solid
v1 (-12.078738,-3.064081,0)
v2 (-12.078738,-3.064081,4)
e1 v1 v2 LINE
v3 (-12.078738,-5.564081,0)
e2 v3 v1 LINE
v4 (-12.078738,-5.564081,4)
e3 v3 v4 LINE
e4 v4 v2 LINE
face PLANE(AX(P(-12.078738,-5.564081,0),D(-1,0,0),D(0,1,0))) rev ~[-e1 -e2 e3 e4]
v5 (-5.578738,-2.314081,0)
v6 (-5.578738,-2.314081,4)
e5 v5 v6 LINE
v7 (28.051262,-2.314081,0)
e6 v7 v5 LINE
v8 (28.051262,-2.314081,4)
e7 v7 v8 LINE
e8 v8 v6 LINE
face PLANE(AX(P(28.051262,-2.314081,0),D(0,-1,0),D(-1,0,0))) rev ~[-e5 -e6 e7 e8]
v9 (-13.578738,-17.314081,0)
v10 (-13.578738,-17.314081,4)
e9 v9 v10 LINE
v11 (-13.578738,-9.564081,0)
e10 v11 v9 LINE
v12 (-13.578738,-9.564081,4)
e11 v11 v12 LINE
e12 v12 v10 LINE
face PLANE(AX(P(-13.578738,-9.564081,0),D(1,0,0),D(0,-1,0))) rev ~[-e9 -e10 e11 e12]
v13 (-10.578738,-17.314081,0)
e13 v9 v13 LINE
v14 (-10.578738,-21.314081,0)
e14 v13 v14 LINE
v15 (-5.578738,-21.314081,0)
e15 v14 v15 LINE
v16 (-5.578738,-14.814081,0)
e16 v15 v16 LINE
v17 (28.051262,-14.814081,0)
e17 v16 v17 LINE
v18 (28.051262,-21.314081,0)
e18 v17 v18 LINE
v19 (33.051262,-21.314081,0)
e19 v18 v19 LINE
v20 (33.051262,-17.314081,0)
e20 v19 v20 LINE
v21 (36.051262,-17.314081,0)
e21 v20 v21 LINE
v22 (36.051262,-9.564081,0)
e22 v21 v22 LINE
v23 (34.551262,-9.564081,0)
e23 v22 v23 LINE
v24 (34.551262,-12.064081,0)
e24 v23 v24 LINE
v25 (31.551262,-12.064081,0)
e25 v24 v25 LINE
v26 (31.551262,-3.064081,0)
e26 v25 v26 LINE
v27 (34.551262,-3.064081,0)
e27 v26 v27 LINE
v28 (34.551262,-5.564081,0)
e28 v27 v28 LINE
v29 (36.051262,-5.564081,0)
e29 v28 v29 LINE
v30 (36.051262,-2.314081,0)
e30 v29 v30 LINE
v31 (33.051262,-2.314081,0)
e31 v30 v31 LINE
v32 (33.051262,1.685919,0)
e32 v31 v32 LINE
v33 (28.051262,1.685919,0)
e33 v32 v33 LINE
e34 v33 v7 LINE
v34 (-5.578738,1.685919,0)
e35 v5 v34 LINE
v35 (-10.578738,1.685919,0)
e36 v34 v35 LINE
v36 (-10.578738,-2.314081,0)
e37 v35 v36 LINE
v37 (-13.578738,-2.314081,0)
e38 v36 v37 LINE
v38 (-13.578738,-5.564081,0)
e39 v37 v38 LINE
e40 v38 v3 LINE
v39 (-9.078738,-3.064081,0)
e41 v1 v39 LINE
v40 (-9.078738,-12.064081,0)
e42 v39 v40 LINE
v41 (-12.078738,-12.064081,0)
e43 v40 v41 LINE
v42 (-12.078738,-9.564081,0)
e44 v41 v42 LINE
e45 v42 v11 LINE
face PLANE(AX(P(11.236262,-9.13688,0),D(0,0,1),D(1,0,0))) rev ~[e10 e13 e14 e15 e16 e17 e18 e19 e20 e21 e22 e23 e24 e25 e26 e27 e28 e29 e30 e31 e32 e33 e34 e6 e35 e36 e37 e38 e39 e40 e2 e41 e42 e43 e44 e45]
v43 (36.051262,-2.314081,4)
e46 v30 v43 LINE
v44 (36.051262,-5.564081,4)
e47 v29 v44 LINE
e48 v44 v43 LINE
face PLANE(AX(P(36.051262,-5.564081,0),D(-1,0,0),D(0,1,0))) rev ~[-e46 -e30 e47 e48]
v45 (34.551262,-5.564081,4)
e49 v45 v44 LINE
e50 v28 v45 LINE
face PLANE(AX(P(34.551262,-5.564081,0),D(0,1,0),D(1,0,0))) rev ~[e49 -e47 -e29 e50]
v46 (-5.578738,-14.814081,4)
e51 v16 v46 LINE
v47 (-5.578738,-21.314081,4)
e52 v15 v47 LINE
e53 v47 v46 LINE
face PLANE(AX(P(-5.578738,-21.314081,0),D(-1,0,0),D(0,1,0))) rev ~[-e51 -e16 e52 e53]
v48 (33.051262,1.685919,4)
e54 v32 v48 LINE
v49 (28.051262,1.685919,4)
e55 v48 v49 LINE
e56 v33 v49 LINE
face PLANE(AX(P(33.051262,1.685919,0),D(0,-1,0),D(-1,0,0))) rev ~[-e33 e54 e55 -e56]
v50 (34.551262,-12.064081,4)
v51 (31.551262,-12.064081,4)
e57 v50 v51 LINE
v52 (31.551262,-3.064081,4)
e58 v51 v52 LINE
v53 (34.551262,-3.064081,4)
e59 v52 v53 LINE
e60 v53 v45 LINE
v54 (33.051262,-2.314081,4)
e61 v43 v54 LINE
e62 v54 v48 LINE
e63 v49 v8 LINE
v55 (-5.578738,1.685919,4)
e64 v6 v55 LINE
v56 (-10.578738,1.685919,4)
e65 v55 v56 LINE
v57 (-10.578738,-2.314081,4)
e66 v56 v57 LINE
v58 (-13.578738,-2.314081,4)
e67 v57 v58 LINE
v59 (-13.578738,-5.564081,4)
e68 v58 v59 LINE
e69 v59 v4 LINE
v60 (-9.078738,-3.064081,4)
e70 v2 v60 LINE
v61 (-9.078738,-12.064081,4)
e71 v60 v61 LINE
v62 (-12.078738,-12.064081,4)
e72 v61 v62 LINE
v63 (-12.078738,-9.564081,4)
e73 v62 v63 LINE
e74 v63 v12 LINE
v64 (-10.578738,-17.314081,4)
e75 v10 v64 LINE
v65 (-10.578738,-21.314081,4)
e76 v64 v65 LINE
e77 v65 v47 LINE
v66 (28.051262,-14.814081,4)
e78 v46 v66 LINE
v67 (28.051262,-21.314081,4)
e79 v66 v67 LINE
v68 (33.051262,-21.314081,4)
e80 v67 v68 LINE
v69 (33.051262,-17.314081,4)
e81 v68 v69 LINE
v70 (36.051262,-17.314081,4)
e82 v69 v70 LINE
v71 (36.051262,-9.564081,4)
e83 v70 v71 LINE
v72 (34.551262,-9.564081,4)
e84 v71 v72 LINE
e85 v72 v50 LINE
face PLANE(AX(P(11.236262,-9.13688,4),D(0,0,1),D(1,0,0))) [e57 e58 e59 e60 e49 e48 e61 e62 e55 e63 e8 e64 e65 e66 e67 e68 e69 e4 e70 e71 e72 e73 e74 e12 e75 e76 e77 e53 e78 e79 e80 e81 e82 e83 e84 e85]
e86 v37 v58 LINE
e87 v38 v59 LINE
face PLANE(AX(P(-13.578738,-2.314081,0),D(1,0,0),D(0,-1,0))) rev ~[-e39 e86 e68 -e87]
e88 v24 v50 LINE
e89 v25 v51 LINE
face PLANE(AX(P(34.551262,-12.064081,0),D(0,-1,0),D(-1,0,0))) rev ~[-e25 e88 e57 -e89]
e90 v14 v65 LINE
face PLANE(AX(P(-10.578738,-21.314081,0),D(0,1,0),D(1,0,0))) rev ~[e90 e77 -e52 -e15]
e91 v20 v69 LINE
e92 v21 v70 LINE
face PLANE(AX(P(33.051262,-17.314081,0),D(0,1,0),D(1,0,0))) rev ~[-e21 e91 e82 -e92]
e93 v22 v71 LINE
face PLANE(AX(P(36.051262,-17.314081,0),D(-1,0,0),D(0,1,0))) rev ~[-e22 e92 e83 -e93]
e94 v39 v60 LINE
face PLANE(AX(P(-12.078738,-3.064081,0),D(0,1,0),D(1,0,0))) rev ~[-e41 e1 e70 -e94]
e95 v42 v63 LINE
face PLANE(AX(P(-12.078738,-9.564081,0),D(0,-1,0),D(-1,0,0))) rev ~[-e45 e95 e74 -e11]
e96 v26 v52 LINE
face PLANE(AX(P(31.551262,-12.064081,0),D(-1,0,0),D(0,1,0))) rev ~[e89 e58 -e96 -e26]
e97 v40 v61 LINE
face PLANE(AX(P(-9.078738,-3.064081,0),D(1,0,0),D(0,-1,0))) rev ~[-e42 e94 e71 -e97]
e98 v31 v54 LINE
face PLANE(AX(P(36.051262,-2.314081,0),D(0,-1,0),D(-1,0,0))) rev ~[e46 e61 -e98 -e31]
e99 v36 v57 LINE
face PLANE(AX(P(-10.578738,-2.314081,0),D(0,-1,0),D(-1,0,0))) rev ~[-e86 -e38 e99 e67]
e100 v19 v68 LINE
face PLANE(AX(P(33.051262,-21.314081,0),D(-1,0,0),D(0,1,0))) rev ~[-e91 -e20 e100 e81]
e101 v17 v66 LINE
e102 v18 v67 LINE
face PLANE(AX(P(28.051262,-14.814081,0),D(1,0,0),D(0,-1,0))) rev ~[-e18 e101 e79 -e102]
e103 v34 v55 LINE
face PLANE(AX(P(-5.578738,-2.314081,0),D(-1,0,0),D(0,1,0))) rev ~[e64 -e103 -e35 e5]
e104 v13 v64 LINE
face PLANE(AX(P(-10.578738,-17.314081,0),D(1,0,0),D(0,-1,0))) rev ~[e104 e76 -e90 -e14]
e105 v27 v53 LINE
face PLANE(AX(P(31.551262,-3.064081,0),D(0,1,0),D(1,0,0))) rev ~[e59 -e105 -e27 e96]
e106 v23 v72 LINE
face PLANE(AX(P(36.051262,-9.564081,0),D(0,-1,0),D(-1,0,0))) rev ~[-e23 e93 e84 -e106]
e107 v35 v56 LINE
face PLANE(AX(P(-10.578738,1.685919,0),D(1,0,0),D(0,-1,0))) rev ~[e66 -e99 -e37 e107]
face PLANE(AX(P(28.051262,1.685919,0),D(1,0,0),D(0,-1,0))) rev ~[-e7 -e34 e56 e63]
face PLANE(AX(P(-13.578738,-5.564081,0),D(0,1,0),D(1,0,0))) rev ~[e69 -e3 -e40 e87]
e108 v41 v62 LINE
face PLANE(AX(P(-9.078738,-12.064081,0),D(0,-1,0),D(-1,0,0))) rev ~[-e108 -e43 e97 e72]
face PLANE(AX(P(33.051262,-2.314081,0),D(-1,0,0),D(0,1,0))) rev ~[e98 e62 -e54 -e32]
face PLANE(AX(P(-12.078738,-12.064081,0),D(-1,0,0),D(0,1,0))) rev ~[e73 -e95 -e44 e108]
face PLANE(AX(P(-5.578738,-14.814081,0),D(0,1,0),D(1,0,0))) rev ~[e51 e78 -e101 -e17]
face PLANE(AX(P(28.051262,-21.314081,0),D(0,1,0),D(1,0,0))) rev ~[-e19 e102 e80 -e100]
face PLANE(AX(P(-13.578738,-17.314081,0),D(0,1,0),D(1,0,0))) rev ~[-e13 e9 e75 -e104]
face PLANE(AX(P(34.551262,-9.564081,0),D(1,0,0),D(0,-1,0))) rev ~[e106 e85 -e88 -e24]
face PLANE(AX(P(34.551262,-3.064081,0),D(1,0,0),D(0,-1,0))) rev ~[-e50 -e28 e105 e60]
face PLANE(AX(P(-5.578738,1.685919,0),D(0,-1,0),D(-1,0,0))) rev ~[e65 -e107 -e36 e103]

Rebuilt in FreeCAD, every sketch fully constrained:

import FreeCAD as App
import Part
import Sketcher
Q = App.Units.Quantity

doc = App.newDocument("Part")
body = doc.addObject("PartDesign::Body", "Body")

sketch1 = body.newObject("Sketcher::SketchObject", "Sketch")
sketch1.AttachmentSupport = (doc.getObject("XY_Plane"), [""])
sketch1.MapMode = "FlatFace"
sketch1.addGeometry(Part.LineSegment(App.Vector(-12.078738, -9.564081, 0), App.Vector(-13.578738, -9.564081, 0)), False)
sketch1.addGeometry(Part.LineSegment(App.Vector(-13.578738, -9.564081, 0), App.Vector(-13.578738, -17.314081, 0)), False)
sketch1.addGeometry(Part.LineSegment(App.Vector(-13.578738, -17.314081, 0), App.Vector(-10.578738, -17.314081, 0)), False)
sketch1.addGeometry(Part.LineSegment(App.Vector(-10.578738, -17.314081, 0), App.Vector(-10.578738, -21.314081, 0)), False)
sketch1.addGeometry(Part.LineSegment(App.Vector(-10.578738, -21.314081, 0), App.Vector(-5.578738, -21.314081, 0)), False)
sketch1.addGeometry(Part.LineSegment(App.Vector(-5.578738, -21.314081, 0), App.Vector(-5.578738, -14.814081, 0)), False)
sketch1.addGeometry(Part.LineSegment(App.Vector(-5.578738, -14.814081, 0), App.Vector(28.051262, -14.814081, 0)), False)
sketch1.addGeometry(Part.LineSegment(App.Vector(28.051262, -14.814081, 0), App.Vector(28.051262, -21.314081, 0)), False)
sketch1.addGeometry(Part.LineSegment(App.Vector(28.051262, -21.314081, 0), App.Vector(33.051262, -21.314081, 0)), False)
sketch1.addGeometry(Part.LineSegment(App.Vector(33.051262, -21.314081, 0), App.Vector(33.051262, -17.314081, 0)), False)
sketch1.addGeometry(Part.LineSegment(App.Vector(33.051262, -17.314081, 0), App.Vector(36.051262, -17.314081, 0)), False)
sketch1.addGeometry(Part.LineSegment(App.Vector(36.051262, -17.314081, 0), App.Vector(36.051262, -9.564081, 0)), False)
sketch1.addGeometry(Part.LineSegment(App.Vector(36.051262, -9.564081, 0), App.Vector(34.551262, -9.564081, 0)), False)
sketch1.addGeometry(Part.LineSegment(App.Vector(34.551262, -9.564081, 0), App.Vector(34.551262, -12.064081, 0)), False)
sketch1.addGeometry(Part.LineSegment(App.Vector(34.551262, -12.064081, 0), App.Vector(31.551262, -12.064081, 0)), False)
sketch1.addGeometry(Part.LineSegment(App.Vector(31.551262, -12.064081, 0), App.Vector(31.551262, -3.064081, 0)), False)
sketch1.addGeometry(Part.LineSegment(App.Vector(31.551262, -3.064081, 0), App.Vector(34.551262, -3.064081, 0)), False)
sketch1.addGeometry(Part.LineSegment(App.Vector(34.551262, -3.064081, 0), App.Vector(34.551262, -5.564081, 0)), False)
sketch1.addGeometry(Part.LineSegment(App.Vector(34.551262, -5.564081, 0), App.Vector(36.051262, -5.564081, 0)), False)
sketch1.addGeometry(Part.LineSegment(App.Vector(36.051262, -5.564081, 0), App.Vector(36.051262, -2.314081, 0)), False)
sketch1.addGeometry(Part.LineSegment(App.Vector(36.051262, -2.314081, 0), App.Vector(33.051262, -2.314081, 0)), False)
sketch1.addGeometry(Part.LineSegment(App.Vector(33.051262, -2.314081, 0), App.Vector(33.051262, 1.685919, 0)), False)
sketch1.addGeometry(Part.LineSegment(App.Vector(33.051262, 1.685919, 0), App.Vector(28.051262, 1.685919, 0)), False)
sketch1.addGeometry(Part.LineSegment(App.Vector(28.051262, 1.685919, 0), App.Vector(28.051262, -2.314081, 0)), False)
sketch1.addGeometry(Part.LineSegment(App.Vector(28.051262, -2.314081, 0), App.Vector(-5.578738, -2.314081, 0)), False)
sketch1.addGeometry(Part.LineSegment(App.Vector(-5.578738, -2.314081, 0), App.Vector(-5.578738, 1.685919, 0)), False)
sketch1.addGeometry(Part.LineSegment(App.Vector(-5.578738, 1.685919, 0), App.Vector(-10.578738, 1.685919, 0)), False)
sketch1.addGeometry(Part.LineSegment(App.Vector(-10.578738, 1.685919, 0), App.Vector(-10.578738, -2.314081, 0)), False)
sketch1.addGeometry(Part.LineSegment(App.Vector(-10.578738, -2.314081, 0), App.Vector(-13.578738, -2.314081, 0)), False)
sketch1.addGeometry(Part.LineSegment(App.Vector(-13.578738, -2.314081, 0), App.Vector(-13.578738, -5.564081, 0)), False)
sketch1.addGeometry(Part.LineSegment(App.Vector(-13.578738, -5.564081, 0), App.Vector(-12.078738, -5.564081, 0)), False)
sketch1.addGeometry(Part.LineSegment(App.Vector(-12.078738, -5.564081, 0), App.Vector(-12.078738, -3.064081, 0)), False)
sketch1.addGeometry(Part.LineSegment(App.Vector(-12.078738, -3.064081, 0), App.Vector(-9.078738, -3.064081, 0)), False)
sketch1.addGeometry(Part.LineSegment(App.Vector(-9.078738, -3.064081, 0), App.Vector(-9.078738, -12.064081, 0)), False)
sketch1.addGeometry(Part.LineSegment(App.Vector(-9.078738, -12.064081, 0), App.Vector(-12.078738, -12.064081, 0)), False)
sketch1.addGeometry(Part.LineSegment(App.Vector(-12.078738, -12.064081, 0), App.Vector(-12.078738, -9.564081, 0)), False)
sketch1.addConstraint(Sketcher.Constraint("Coincident", 0, 2, 1, 1))
sketch1.addConstraint(Sketcher.Constraint("Coincident", 1, 2, 2, 1))
sketch1.addConstraint(Sketcher.Constraint("Coincident", 2, 2, 3, 1))
sketch1.addConstraint(Sketcher.Constraint("Coincident", 3, 2, 4, 1))
sketch1.addConstraint(Sketcher.Constraint("Coincident", 4, 2, 5, 1))
sketch1.addConstraint(Sketcher.Constraint("Coincident", 5, 2, 6, 1))
sketch1.addConstraint(Sketcher.Constraint("Coincident", 6, 2, 7, 1))
sketch1.addConstraint(Sketcher.Constraint("Coincident", 7, 2, 8, 1))
sketch1.addConstraint(Sketcher.Constraint("Coincident", 8, 2, 9, 1))
sketch1.addConstraint(Sketcher.Constraint("Coincident", 9, 2, 10, 1))
sketch1.addConstraint(Sketcher.Constraint("Coincident", 10, 2, 11, 1))
sketch1.addConstraint(Sketcher.Constraint("Coincident", 11, 2, 12, 1))
sketch1.addConstraint(Sketcher.Constraint("Coincident", 12, 2, 13, 1))
sketch1.addConstraint(Sketcher.Constraint("Coincident", 13, 2, 14, 1))
sketch1.addConstraint(Sketcher.Constraint("Coincident", 14, 2, 15, 1))
sketch1.addConstraint(Sketcher.Constraint("Coincident", 15, 2, 16, 1))
sketch1.addConstraint(Sketcher.Constraint("Coincident", 16, 2, 17, 1))
sketch1.addConstraint(Sketcher.Constraint("Coincident", 17, 2, 18, 1))
sketch1.addConstraint(Sketcher.Constraint("Coincident", 18, 2, 19, 1))
sketch1.addConstraint(Sketcher.Constraint("Coincident", 19, 2, 20, 1))
sketch1.addConstraint(Sketcher.Constraint("Coincident", 20, 2, 21, 1))
sketch1.addConstraint(Sketcher.Constraint("Coincident", 21, 2, 22, 1))
sketch1.addConstraint(Sketcher.Constraint("Coincident", 22, 2, 23, 1))
sketch1.addConstraint(Sketcher.Constraint("Coincident", 23, 2, 24, 1))
sketch1.addConstraint(Sketcher.Constraint("Coincident", 24, 2, 25, 1))
sketch1.addConstraint(Sketcher.Constraint("Coincident", 25, 2, 26, 1))
sketch1.addConstraint(Sketcher.Constraint("Coincident", 26, 2, 27, 1))
sketch1.addConstraint(Sketcher.Constraint("Coincident", 27, 2, 28, 1))
sketch1.addConstraint(Sketcher.Constraint("Coincident", 28, 2, 29, 1))
sketch1.addConstraint(Sketcher.Constraint("Coincident", 29, 2, 30, 1))
sketch1.addConstraint(Sketcher.Constraint("Coincident", 30, 2, 31, 1))
sketch1.addConstraint(Sketcher.Constraint("Coincident", 31, 2, 32, 1))
sketch1.addConstraint(Sketcher.Constraint("Coincident", 32, 2, 33, 1))
sketch1.addConstraint(Sketcher.Constraint("Coincident", 33, 2, 34, 1))
sketch1.addConstraint(Sketcher.Constraint("Coincident", 34, 2, 35, 1))
sketch1.addConstraint(Sketcher.Constraint("Coincident", 35, 2, 0, 1))
sketch1.addConstraint(Sketcher.Constraint("Horizontal", 0))
sketch1.addConstraint(Sketcher.Constraint("Vertical", 1))
sketch1.addConstraint(Sketcher.Constraint("Horizontal", 2))
sketch1.addConstraint(Sketcher.Constraint("Vertical", 3))
sketch1.addConstraint(Sketcher.Constraint("Horizontal", 4))
sketch1.addConstraint(Sketcher.Constraint("Vertical", 5))
sketch1.addConstraint(Sketcher.Constraint("Horizontal", 6))
sketch1.addConstraint(Sketcher.Constraint("Vertical", 7))
sketch1.addConstraint(Sketcher.Constraint("Horizontal", 8))
sketch1.addConstraint(Sketcher.Constraint("Vertical", 9))
sketch1.addConstraint(Sketcher.Constraint("Horizontal", 10))
sketch1.addConstraint(Sketcher.Constraint("Vertical", 11))
sketch1.addConstraint(Sketcher.Constraint("Horizontal", 12))
sketch1.addConstraint(Sketcher.Constraint("Vertical", 13))
sketch1.addConstraint(Sketcher.Constraint("Horizontal", 14))
sketch1.addConstraint(Sketcher.Constraint("Vertical", 15))
sketch1.addConstraint(Sketcher.Constraint("Horizontal", 16))
sketch1.addConstraint(Sketcher.Constraint("Vertical", 17))
sketch1.addConstraint(Sketcher.Constraint("Horizontal", 18))
sketch1.addConstraint(Sketcher.Constraint("Vertical", 19))
sketch1.addConstraint(Sketcher.Constraint("Horizontal", 20))
sketch1.addConstraint(Sketcher.Constraint("Vertical", 21))
sketch1.addConstraint(Sketcher.Constraint("Horizontal", 22))
sketch1.addConstraint(Sketcher.Constraint("Vertical", 23))
sketch1.addConstraint(Sketcher.Constraint("Horizontal", 24))
sketch1.addConstraint(Sketcher.Constraint("Vertical", 25))
sketch1.addConstraint(Sketcher.Constraint("Horizontal", 26))
sketch1.addConstraint(Sketcher.Constraint("Vertical", 27))
sketch1.addConstraint(Sketcher.Constraint("Horizontal", 28))
sketch1.addConstraint(Sketcher.Constraint("Vertical", 29))
sketch1.addConstraint(Sketcher.Constraint("Horizontal", 30))
sketch1.addConstraint(Sketcher.Constraint("Vertical", 31))
sketch1.addConstraint(Sketcher.Constraint("Horizontal", 32))
sketch1.addConstraint(Sketcher.Constraint("Vertical", 33))
sketch1.addConstraint(Sketcher.Constraint("Horizontal", 34))
sketch1.addConstraint(Sketcher.Constraint("Vertical", 35))
sketch1.addConstraint(Sketcher.Constraint("Horizontal", 4, 2, 7, 2))
sketch1.addConstraint(Sketcher.Constraint("Horizontal", 2, 2, 9, 2))
sketch1.addConstraint(Sketcher.Constraint("Horizontal", 0, 2, 11, 2))
sketch1.addConstraint(Sketcher.Constraint("Horizontal", 20, 2, 23, 2))
sketch1.addConstraint(Sketcher.Constraint("Horizontal", 22, 2, 25, 2))
sketch1.addConstraint(Sketcher.Constraint("Horizontal", 24, 2, 27, 2))
sketch1.addConstraint(Sketcher.Constraint("Horizontal", 18, 2, 29, 2))
sketch1.addConstraint(Sketcher.Constraint("Horizontal", 16, 2, 31, 2))
sketch1.addConstraint(Sketcher.Constraint("Horizontal", 14, 2, 33, 2))
sketch1.addConstraint(Sketcher.Constraint("Vertical", 13, 2, 16, 2))
sketch1.addConstraint(Sketcher.Constraint("Vertical", 11, 2, 18, 2))
sketch1.addConstraint(Sketcher.Constraint("Vertical", 9, 2, 20, 2))
sketch1.addConstraint(Sketcher.Constraint("Vertical", 7, 2, 22, 2))
sketch1.addConstraint(Sketcher.Constraint("Vertical", 5, 2, 24, 2))
sketch1.addConstraint(Sketcher.Constraint("Vertical", 3, 2, 26, 2))
sketch1.addConstraint(Sketcher.Constraint("Vertical", 1, 2, 28, 2))
sketch1.addConstraint(Sketcher.Constraint("Vertical", 31, 2, 34, 2))
sketch1.addConstraint(Sketcher.Constraint("Equal", 4, 8))
sketch1.addConstraint(Sketcher.Constraint("Equal", 2, 10))
sketch1.addConstraint(Sketcher.Constraint("Equal", 0, 12))
sketch1.addConstraint(Sketcher.Constraint("Equal", 10, 14))
sketch1.addConstraint(Sketcher.Constraint("Equal", 28, 32))
sketch1.addConstraint(Sketcher.Constraint("Equal", 13, 17))
sketch1.addConstraint(Sketcher.Constraint("Equal", 9, 21))
sketch1.addConstraint(Sketcher.Constraint("DistanceX", 2, 1, 2, 2, Q("3 mm")))
sketch1.addConstraint(Sketcher.Constraint("DistanceX", 4, 1, 4, 2, Q("5 mm")))
sketch1.addConstraint(Sketcher.Constraint("DistanceY", 3, 2, 3, 1, Q("4 mm")))
sketch1.addConstraint(Sketcher.Constraint("DistanceY", 15, 1, 15, 2, Q("9 mm")))
sketch1.addConstraint(Sketcher.Constraint("DistanceX", 0, 2, 0, 1, Q("1.5 mm")))
sketch1.addConstraint(Sketcher.Constraint("DistanceY", 5, 1, 5, 2, Q("6.5 mm")))
sketch1.addConstraint(Sketcher.Constraint("DistanceY", 13, 2, 13, 1, Q("2.5 mm")))
sketch1.addConstraint(Sketcher.Constraint("DistanceY", 2, 2, 24, 2, Q("15 mm")))
sketch1.addConstraint(Sketcher.Constraint("DistanceX", 6, 1, 6, 2, Q("33.63 mm")))
sketch1.addConstraint(Sketcher.Constraint("DistanceY", 1, 2, 1, 1, Q("7.75 mm")))
sketch1.addConstraint(Sketcher.Constraint("DistanceX", 0, 2, -1, 1, Q("13.578738 mm")))
sketch1.addConstraint(Sketcher.Constraint("DistanceY", 0, 2, -1, 1, Q("9.564081 mm")))
pad1 = body.newObject("PartDesign::Pad", "Pad")
pad1.Profile = sketch1
pad1.Length = 4

doc.recompute()
